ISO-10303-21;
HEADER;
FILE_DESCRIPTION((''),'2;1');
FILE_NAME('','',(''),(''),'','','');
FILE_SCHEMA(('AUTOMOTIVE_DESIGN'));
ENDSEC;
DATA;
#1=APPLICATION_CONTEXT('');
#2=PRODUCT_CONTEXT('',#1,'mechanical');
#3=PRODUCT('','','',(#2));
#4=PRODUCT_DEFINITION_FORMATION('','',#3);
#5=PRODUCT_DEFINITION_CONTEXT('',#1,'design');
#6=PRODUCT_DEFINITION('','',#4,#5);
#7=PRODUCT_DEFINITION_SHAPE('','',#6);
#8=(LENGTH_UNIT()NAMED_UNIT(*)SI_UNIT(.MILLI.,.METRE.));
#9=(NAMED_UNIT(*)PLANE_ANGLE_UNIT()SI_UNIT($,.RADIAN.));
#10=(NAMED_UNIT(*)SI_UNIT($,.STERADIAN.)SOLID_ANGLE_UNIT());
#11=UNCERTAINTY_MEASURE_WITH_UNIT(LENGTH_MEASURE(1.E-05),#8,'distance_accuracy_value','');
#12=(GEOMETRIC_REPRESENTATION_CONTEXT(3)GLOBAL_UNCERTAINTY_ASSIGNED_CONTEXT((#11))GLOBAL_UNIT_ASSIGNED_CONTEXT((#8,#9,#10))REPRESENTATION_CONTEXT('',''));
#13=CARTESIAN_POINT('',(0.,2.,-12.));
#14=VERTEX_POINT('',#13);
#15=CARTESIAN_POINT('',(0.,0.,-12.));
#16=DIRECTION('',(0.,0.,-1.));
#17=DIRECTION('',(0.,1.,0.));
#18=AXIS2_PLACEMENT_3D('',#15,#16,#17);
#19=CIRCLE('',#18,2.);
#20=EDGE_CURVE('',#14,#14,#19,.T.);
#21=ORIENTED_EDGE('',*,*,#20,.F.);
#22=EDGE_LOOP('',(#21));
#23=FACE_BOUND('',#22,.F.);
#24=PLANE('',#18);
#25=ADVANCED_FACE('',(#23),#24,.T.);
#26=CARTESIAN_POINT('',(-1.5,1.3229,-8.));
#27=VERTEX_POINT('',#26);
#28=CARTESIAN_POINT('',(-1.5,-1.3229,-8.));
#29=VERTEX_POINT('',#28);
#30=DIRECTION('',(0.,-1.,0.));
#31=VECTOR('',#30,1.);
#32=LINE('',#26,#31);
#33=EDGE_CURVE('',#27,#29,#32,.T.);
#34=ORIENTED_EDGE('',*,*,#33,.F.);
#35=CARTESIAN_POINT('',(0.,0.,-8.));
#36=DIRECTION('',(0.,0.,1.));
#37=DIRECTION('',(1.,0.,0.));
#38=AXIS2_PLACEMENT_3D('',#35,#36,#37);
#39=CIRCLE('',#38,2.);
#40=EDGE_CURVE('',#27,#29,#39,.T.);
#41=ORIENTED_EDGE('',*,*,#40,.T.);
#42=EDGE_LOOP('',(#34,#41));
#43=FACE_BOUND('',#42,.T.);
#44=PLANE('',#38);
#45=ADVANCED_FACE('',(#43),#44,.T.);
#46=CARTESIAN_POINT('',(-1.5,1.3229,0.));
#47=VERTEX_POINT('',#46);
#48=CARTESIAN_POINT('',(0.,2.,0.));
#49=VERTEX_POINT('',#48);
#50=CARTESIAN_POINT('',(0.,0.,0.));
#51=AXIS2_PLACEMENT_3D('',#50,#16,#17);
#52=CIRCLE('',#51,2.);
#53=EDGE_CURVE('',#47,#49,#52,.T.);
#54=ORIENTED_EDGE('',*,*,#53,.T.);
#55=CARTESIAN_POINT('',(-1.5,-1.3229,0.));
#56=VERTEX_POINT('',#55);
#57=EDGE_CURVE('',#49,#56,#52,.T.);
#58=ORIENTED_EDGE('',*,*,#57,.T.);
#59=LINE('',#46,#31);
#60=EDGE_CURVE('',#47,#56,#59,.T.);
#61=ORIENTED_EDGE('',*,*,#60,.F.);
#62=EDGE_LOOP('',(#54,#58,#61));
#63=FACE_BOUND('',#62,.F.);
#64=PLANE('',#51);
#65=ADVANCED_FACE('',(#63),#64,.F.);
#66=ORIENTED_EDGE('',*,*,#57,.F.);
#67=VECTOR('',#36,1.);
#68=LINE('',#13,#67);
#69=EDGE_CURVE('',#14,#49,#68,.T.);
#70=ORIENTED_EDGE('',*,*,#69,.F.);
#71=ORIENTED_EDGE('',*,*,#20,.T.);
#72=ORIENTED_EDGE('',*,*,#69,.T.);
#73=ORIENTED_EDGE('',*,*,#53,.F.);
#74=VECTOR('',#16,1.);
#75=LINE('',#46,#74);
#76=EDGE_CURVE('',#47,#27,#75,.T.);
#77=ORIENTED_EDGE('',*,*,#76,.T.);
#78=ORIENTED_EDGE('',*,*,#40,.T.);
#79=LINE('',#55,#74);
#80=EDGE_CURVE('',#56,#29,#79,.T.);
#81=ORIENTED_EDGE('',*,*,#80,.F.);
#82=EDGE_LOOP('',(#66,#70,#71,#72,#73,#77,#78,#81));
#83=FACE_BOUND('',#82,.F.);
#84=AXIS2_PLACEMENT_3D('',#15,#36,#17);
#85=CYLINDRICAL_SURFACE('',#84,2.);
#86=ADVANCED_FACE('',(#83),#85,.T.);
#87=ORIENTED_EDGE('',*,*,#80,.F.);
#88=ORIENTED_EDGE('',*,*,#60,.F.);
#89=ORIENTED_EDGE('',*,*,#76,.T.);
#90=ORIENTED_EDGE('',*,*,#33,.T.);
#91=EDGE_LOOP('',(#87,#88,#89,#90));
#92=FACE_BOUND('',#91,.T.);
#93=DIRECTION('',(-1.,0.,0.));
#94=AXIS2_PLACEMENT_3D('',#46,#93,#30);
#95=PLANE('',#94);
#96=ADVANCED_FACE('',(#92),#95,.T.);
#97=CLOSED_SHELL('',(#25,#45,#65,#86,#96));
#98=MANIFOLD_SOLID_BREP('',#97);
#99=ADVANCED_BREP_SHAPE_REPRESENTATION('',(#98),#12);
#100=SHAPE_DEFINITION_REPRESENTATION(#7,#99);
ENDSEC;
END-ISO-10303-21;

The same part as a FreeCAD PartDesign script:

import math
import FreeCAD as App
import Part
import Sketcher


def add_polygon(sketch, points):
    """Adds a closed chain of lines whose ends are joined by coincident constraints."""
    first, n = sketch.GeometryCount, len(points)
    for a, b in zip(points, points[1:] + points[:1]):
        sketch.addGeometry(Part.LineSegment(App.Vector(*a, 0), App.Vector(*b, 0)), False)
    for i in range(n):
        sketch.addConstraint(Sketcher.Constraint("Coincident", first + i, 2, first + (i + 1) % n, 1))

doc = App.newDocument("Part")
params = doc.addObject("Spreadsheet::Sheet", "Params")
for row, (alias, value) in enumerate([
    ("sketch1_height", "12 mm"),
    ("sketch1_width", "2 mm"),
    ("revolution_angle", "360 deg"),
    ("sketch2_radius", "2 mm"),
    ("pocket1_length", "8 mm"),
], start=1):
    params.set(f"A{row}", alias)
    params.set(f"B{row}", "=" + value)
    params.setAlias(f"B{row}", alias)

body = doc.addObject("PartDesign::Body", "Body")

# Sketch on YZ plane
sketch1 = body.newObject("Sketcher::SketchObject", "Sketch")
sketch1.AttachmentSupport = (doc.getObject("YZ_Plane"), [""])
sketch1.MapMode = "FlatFace"
add_polygon(sketch1, [(2, -12), (2, 0), (0, 0), (0, -12)])  # lines 0-3
sketch1.addConstraint([
    Sketcher.Constraint("Vertical", 0),
    Sketcher.Constraint("Horizontal", 1),
    Sketcher.Constraint("Vertical", 2),
    Sketcher.Constraint("Horizontal", 3),
    Sketcher.Constraint("Coincident", 1, 2, -1, 1),
    Sketcher.Constraint("DistanceY", 0, 1, 0, 2, 12.0),
    Sketcher.Constraint("DistanceX", 1, 2, 1, 1, 2.0),
])
sketch1.setExpression("Constraints[9]", "Params.sketch1_height")
sketch1.setExpression("Constraints[10]", "Params.sketch1_width")
revolution = body.newObject("PartDesign::Revolution", "Revolution")
revolution.Profile = sketch1
revolution.ReferenceAxis = (sketch1, ["V_Axis"])
revolution.setExpression("Angle", "Params.revolution_angle")

# Sketch on XY plane
sketch2 = body.newObject("Sketcher::SketchObject", "Sketch001")
sketch2.AttachmentSupport = (doc.getObject("XY_Plane"), [""])
sketch2.MapMode = "FlatFace"
sketch2.addGeometry([
    Part.LineSegment(App.Vector(-1.5, -1.3, 0), App.Vector(-1.5, 1.3, 0)),
    Part.ArcOfCircle(Part.Circle(App.Vector(0, 0, 0), App.Vector(0, 0, 1), 2), math.radians(139), math.radians(221)),
], False)
sketch2.addConstraint([
    Sketcher.Constraint("Coincident", 0, 1, 1, 2),
    Sketcher.Constraint("Coincident", 1, 1, 0, 2),
    Sketcher.Constraint("Vertical", 0),
    Sketcher.Constraint("Coincident", 1, 3, -1, 1),
    Sketcher.Constraint("Radius", 1, 2.0),
    Sketcher.Constraint("DistanceX", 0, 1, -1, 1, 1.5),
])
sketch2.setExpression("Constraints[4]", "Params.sketch2_radius")
pocket1 = body.newObject("PartDesign::Pocket", "Pocket")
pocket1.Profile = sketch2
pocket1.setExpression("Length", "Params.pocket1_length")

doc.recompute()
